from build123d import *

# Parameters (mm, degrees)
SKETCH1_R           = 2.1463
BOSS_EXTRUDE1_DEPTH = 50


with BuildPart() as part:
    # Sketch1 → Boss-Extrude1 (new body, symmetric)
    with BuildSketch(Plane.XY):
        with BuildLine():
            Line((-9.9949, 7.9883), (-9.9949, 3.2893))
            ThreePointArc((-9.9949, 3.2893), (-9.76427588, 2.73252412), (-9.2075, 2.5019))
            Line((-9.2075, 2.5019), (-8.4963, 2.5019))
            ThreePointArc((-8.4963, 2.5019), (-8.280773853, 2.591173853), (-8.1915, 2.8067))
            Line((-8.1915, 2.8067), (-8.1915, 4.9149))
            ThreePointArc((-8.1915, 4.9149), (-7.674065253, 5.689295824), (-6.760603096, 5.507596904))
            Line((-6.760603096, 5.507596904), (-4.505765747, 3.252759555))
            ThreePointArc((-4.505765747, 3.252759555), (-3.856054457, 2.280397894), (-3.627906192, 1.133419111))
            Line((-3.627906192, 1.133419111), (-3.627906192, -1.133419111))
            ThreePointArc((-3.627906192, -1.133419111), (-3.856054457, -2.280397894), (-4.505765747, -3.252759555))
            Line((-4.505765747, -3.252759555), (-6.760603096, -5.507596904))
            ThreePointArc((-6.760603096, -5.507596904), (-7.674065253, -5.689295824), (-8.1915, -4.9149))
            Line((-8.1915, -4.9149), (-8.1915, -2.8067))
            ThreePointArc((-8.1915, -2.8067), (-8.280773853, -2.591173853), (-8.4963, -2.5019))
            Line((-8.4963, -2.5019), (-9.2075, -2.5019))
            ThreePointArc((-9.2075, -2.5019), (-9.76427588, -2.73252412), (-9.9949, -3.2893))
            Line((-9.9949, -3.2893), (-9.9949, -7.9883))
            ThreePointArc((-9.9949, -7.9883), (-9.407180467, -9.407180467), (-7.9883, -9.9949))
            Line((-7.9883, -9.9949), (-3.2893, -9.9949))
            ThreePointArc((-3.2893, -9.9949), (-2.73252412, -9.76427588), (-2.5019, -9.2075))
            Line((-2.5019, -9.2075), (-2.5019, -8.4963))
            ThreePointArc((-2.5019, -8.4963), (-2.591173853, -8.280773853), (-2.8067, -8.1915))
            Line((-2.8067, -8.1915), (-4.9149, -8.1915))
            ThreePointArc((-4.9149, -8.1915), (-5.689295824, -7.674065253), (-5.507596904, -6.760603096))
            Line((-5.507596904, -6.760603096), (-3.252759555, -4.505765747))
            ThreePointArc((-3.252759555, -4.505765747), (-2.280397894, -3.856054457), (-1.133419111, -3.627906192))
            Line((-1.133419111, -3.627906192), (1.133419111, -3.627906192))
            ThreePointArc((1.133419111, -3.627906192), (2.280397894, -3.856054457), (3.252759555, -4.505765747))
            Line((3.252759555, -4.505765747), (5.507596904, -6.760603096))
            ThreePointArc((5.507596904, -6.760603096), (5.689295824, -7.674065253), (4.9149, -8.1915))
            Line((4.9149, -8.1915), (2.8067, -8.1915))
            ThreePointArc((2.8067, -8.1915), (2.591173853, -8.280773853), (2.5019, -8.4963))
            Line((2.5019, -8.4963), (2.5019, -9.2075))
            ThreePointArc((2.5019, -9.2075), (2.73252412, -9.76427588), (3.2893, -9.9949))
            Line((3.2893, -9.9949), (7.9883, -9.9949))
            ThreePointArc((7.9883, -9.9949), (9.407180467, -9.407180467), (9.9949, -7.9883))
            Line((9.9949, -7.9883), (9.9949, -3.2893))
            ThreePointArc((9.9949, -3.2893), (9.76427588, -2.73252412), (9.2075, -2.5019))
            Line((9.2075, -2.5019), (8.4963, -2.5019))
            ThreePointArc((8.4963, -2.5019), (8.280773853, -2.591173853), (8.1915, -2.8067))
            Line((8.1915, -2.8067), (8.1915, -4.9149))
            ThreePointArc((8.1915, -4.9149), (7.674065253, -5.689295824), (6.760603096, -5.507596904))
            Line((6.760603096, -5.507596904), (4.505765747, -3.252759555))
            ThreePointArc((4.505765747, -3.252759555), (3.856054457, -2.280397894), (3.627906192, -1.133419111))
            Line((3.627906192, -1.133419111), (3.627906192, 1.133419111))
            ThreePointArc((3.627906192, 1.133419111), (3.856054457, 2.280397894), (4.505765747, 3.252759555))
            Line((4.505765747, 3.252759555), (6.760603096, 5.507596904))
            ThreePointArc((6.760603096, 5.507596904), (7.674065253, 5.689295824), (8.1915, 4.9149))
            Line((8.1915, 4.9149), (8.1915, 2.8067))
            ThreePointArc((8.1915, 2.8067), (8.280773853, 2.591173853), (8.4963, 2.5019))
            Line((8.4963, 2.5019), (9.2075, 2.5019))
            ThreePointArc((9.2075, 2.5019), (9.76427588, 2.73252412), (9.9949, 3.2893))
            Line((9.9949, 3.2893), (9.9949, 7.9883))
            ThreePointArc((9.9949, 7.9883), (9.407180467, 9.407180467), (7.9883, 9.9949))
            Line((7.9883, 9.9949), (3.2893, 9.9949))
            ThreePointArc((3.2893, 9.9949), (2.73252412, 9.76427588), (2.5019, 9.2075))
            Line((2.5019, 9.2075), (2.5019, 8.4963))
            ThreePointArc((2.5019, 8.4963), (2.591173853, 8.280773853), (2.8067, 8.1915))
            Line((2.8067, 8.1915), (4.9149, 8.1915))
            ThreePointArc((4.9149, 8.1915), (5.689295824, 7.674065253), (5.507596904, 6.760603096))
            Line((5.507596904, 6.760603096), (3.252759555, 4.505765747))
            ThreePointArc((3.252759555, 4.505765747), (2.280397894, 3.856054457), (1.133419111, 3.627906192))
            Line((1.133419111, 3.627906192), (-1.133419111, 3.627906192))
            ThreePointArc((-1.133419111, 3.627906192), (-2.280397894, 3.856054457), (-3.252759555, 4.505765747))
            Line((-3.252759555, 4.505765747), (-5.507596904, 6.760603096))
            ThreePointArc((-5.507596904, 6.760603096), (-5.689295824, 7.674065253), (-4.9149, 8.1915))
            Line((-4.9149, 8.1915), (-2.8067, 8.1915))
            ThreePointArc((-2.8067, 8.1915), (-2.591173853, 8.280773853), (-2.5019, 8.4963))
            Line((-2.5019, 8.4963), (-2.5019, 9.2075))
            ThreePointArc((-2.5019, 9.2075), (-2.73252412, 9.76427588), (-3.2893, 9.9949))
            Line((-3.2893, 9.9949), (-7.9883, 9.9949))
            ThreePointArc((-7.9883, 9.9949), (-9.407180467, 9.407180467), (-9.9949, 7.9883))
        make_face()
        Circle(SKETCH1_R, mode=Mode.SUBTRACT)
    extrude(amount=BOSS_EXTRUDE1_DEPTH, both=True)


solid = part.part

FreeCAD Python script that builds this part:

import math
import FreeCAD as App
import Part
import Sketcher
Q = App.Units.Quantity

doc = App.newDocument("Part")
params = doc.addObject("Spreadsheet::Sheet", "Params")
for row, (alias, value) in enumerate([
    ("sketch1_diameter", "0.169 in"),
    ("sketch1_radius", "0.031 in"),
    ("sketch1_radius2", "0.012 in"),
    ("sketch1_radius3", "0.033 in"),
    ("sketch1_radius4", "0.118 in"),
    ("pad1_length", "100 mm"),
], start=1):
    params.set(f"A{row}", alias)
    params.set(f"B{row}", "=" + value)
    params.setAlias(f"B{row}", alias)

body = doc.addObject("PartDesign::Body", "Body")

sketch1 = body.newObject("Sketcher::SketchObject", "Sketch")
sketch1.AttachmentSupport = (doc.getObject("XY_Plane"), [""])
sketch1.MapMode = "FlatFace"
sketch1.addGeometry([
    Part.LineSegment(App.Vector(-9.99, 7.99, 0), App.Vector(-9.99, 3.29, 0)),
    Part.ArcOfCircle(Part.Circle(App.Vector(-9.21, 3.29, 0), App.Vector(0, 0, 1), 0.79), math.radians(180), math.radians(270)),
    Part.LineSegment(App.Vector(-9.21, 2.5, 0), App.Vector(-8.5, 2.5, 0)),
    Part.ArcOfCircle(Part.Circle(App.Vector(-8.5, 2.81, 0), App.Vector(0, 0, 1), 0.3), math.radians(-90), math.radians(0)),
    Part.LineSegment(App.Vector(-8.19, 2.81, 0), App.Vector(-8.19, 4.91, 0)),
    Part.ArcOfCircle(Part.Circle(App.Vector(-7.35, 4.91, 0), App.Vector(0, 0, 1), 0.84), math.radians(45), math.radians(180)),
    Part.LineSegment(App.Vector(-6.76, 5.51, 0), App.Vector(-4.51, 3.25, 0)),
    Part.ArcOfCircle(Part.Circle(App.Vector(-6.63, 1.13, 0), App.Vector(0, 0, 1), 3), math.radians(0), math.radians(45)),
    Part.LineSegment(App.Vector(-3.63, 1.13, 0), App.Vector(-3.63, -1.13, 0)),
    Part.ArcOfCircle(Part.Circle(App.Vector(-6.63, -1.13, 0), App.Vector(0, 0, 1), 3), math.radians(-45), math.radians(0)),
    Part.LineSegment(App.Vector(-4.51, -3.25, 0), App.Vector(-6.76, -5.51, 0)),
    Part.ArcOfCircle(Part.Circle(App.Vector(-7.35, -4.91, 0), App.Vector(0, 0, 1), 0.84), math.radians(180), math.radians(315)),
    Part.LineSegment(App.Vector(-8.19, -4.91, 0), App.Vector(-8.19, -2.81, 0)),
    Part.ArcOfCircle(Part.Circle(App.Vector(-8.5, -2.81, 0), App.Vector(0, 0, 1), 0.3), math.radians(0), math.radians(90)),
    Part.LineSegment(App.Vector(-8.5, -2.5, 0), App.Vector(-9.21, -2.5, 0)),
    Part.ArcOfCircle(Part.Circle(App.Vector(-9.21, -3.29, 0), App.Vector(0, 0, 1), 0.79), math.radians(90), math.radians(180)),
    Part.LineSegment(App.Vector(-9.99, -3.29, 0), App.Vector(-9.99, -7.99, 0)),
    Part.ArcOfCircle(Part.Circle(App.Vector(-7.99, -7.99, 0), App.Vector(0, 0, 1), 2.01), math.radians(180), math.radians(270)),
    Part.LineSegment(App.Vector(-7.99, -9.99, 0), App.Vector(-3.29, -9.99, 0)),
    Part.ArcOfCircle(Part.Circle(App.Vector(-3.29, -9.21, 0), App.Vector(0, 0, 1), 0.79), math.radians(-90), math.radians(0)),
    Part.LineSegment(App.Vector(-2.5, -9.21, 0), App.Vector(-2.5, -8.5, 0)),
    Part.ArcOfCircle(Part.Circle(App.Vector(-2.81, -8.5, 0), App.Vector(0, 0, 1), 0.3), math.radians(0), math.radians(90)),
    Part.LineSegment(App.Vector(-2.81, -8.19, 0), App.Vector(-4.91, -8.19, 0)),
    Part.ArcOfCircle(Part.Circle(App.Vector(-4.91, -7.35, 0), App.Vector(0, 0, 1), 0.84), math.radians(135), math.radians(270)),
    Part.LineSegment(App.Vector(-5.51, -6.76, 0), App.Vector(-3.25, -4.51, 0)),
    Part.ArcOfCircle(Part.Circle(App.Vector(-1.13, -6.63, 0), App.Vector(0, 0, 1), 3), math.radians(90), math.radians(135)),
    Part.LineSegment(App.Vector(-1.13, -3.63, 0), App.Vector(1.13, -3.63, 0)),
    Part.ArcOfCircle(Part.Circle(App.Vector(1.13, -6.63, 0), App.Vector(0, 0, 1), 3), math.radians(45), math.radians(90)),
    Part.LineSegment(App.Vector(3.25, -4.51, 0), App.Vector(5.51, -6.76, 0)),
    Part.ArcOfCircle(Part.Circle(App.Vector(4.91, -7.35, 0), App.Vector(0, 0, 1), 0.84), math.radians(-90), math.radians(45)),
    Part.LineSegment(App.Vector(4.91, -8.19, 0), App.Vector(2.81, -8.19, 0)),
    Part.ArcOfCircle(Part.Circle(App.Vector(2.81, -8.5, 0), App.Vector(0, 0, 1), 0.3), math.radians(90), math.radians(180)),
    Part.LineSegment(App.Vector(2.5, -8.5, 0), App.Vector(2.5, -9.21, 0)),
    Part.ArcOfCircle(Part.Circle(App.Vector(3.29, -9.21, 0), App.Vector(0, 0, 1), 0.79), math.radians(180), math.radians(270)),
    Part.LineSegment(App.Vector(3.29, -9.99, 0), App.Vector(7.99, -9.99, 0)),
    Part.ArcOfCircle(Part.Circle(App.Vector(7.99, -7.99, 0), App.Vector(0, 0, 1), 2.01), math.radians(-90), math.radians(0)),
    Part.LineSegment(App.Vector(9.99, -7.99, 0), App.Vector(9.99, -3.29, 0)),
    Part.ArcOfCircle(Part.Circle(App.Vector(9.21, -3.29, 0), App.Vector(0, 0, 1), 0.79), math.radians(0), math.radians(90)),
    Part.LineSegment(App.Vector(9.21, -2.5, 0), App.Vector(8.5, -2.5, 0)),
    Part.ArcOfCircle(Part.Circle(App.Vector(8.5, -2.81, 0), App.Vector(0, 0, 1), 0.3), math.radians(90), math.radians(180)),
    Part.LineSegment(App.Vector(8.19, -2.81, 0), App.Vector(8.19, -4.91, 0)),
    Part.ArcOfCircle(Part.Circle(App.Vector(7.35, -4.91, 0), App.Vector(0, 0, 1), 0.84), math.radians(-135), math.radians(0)),
    Part.LineSegment(App.Vector(6.76, -5.51, 0), App.Vector(4.51, -3.25, 0)),
    Part.ArcOfCircle(Part.Circle(App.Vector(6.63, -1.13, 0), App.Vector(0, 0, 1), 3), math.radians(180), math.radians(225)),
    Part.LineSegment(App.Vector(3.63, -1.13, 0), App.Vector(3.63, 1.13, 0)),
    Part.ArcOfCircle(Part.Circle(App.Vector(6.63, 1.13, 0), App.Vector(0, 0, 1), 3), math.radians(135), math.radians(180)),
    Part.LineSegment(App.Vector(4.51, 3.25, 0), App.Vector(6.76, 5.51, 0)),
    Part.ArcOfCircle(Part.Circle(App.Vector(7.35, 4.91, 0), App.Vector(0, 0, 1), 0.84), math.radians(0), math.radians(135)),
    Part.LineSegment(App.Vector(8.19, 4.91, 0), App.Vector(8.19, 2.81, 0)),
    Part.ArcOfCircle(Part.Circle(App.Vector(8.5, 2.81, 0), App.Vector(0, 0, 1), 0.3), math.radians(180), math.radians(270)),
    Part.LineSegment(App.Vector(8.5, 2.5, 0), App.Vector(9.21, 2.5, 0)),
    Part.ArcOfCircle(Part.Circle(App.Vector(9.21, 3.29, 0), App.Vector(0, 0, 1), 0.79), math.radians(-90), math.radians(0)),
    Part.LineSegment(App.Vector(9.99, 3.29, 0), App.Vector(9.99, 7.99, 0)),
    Part.ArcOfCircle(Part.Circle(App.Vector(7.99, 7.99, 0), App.Vector(0, 0, 1), 2.01), math.radians(0), math.radians(90)),
    Part.LineSegment(App.Vector(7.99, 9.99, 0), App.Vector(3.29, 9.99, 0)),
    Part.ArcOfCircle(Part.Circle(App.Vector(3.29, 9.21, 0), App.Vector(0, 0, 1), 0.79), math.radians(90), math.radians(180)),
    Part.LineSegment(App.Vector(2.5, 9.21, 0), App.Vector(2.5, 8.5, 0)),
    Part.ArcOfCircle(Part.Circle(App.Vector(2.81, 8.5, 0), App.Vector(0, 0, 1), 0.3), math.radians(180), math.radians(270)),
    Part.LineSegment(App.Vector(2.81, 8.19, 0), App.Vector(4.91, 8.19, 0)),
    Part.ArcOfCircle(Part.Circle(App.Vector(4.91, 7.35, 0), App.Vector(0, 0, 1), 0.84), math.radians(-45), math.radians(90)),
    Part.LineSegment(App.Vector(5.51, 6.76, 0), App.Vector(3.25, 4.51, 0)),
    Part.ArcOfCircle(Part.Circle(App.Vector(1.13, 6.63, 0), App.Vector(0, 0, 1), 3), math.radians(-90), math.radians(-45)),
    Part.LineSegment(App.Vector(1.13, 3.63, 0), App.Vector(-1.13, 3.63, 0)),
    Part.ArcOfCircle(Part.Circle(App.Vector(-1.13, 6.63, 0), App.Vector(0, 0, 1), 3), math.radians(-135), math.radians(-90)),
    Part.LineSegment(App.Vector(-3.25, 4.51, 0), App.Vector(-5.51, 6.76, 0)),
    Part.ArcOfCircle(Part.Circle(App.Vector(-4.91, 7.35, 0), App.Vector(0, 0, 1), 0.84), math.radians(90), math.radians(225)),
    Part.LineSegment(App.Vector(-4.91, 8.19, 0), App.Vector(-2.81, 8.19, 0)),
    Part.ArcOfCircle(Part.Circle(App.Vector(-2.81, 8.5, 0), App.Vector(0, 0, 1), 0.3), math.radians(-90), math.radians(0)),
    Part.LineSegment(App.Vector(-2.5, 8.5, 0), App.Vector(-2.5, 9.21, 0)),
    Part.ArcOfCircle(Part.Circle(App.Vector(-3.29, 9.21, 0), App.Vector(0, 0, 1), 0.79), math.radians(0), math.radians(90)),
    Part.LineSegment(App.Vector(-3.29, 9.99, 0), App.Vector(-7.99, 9.99, 0)),
    Part.ArcOfCircle(Part.Circle(App.Vector(-7.99, 7.99, 0), App.Vector(0, 0, 1), 2.01), math.radians(90), math.radians(180)),
    Part.Circle(App.Vector(0, 0, 0), App.Vector(0, 0, 1), 2.15),
], False)
sketch1.addConstraint([
    Sketcher.Constraint("Tangent", 0, 2, 1, 1),
    Sketcher.Constraint("Tangent", 1, 2, 2, 1),
    Sketcher.Constraint("Tangent", 2, 2, 3, 1),
    Sketcher.Constraint("Tangent", 3, 2, 4, 1),
    Sketcher.Constraint("Tangent", 4, 2, 5, 2),
    Sketcher.Constraint("Tangent", 5, 1, 6, 1),
    Sketcher.Constraint("Tangent", 6, 2, 7, 2),
    Sketcher.Constraint("Tangent", 7, 1, 8, 1),
    Sketcher.Constraint("Tangent", 8, 2, 9, 2),
    Sketcher.Constraint("Tangent", 9, 1, 10, 1),
    Sketcher.Constraint("Tangent", 10, 2, 11, 2),
    Sketcher.Constraint("Tangent", 11, 1, 12, 1),
    Sketcher.Constraint("Tangent", 12, 2, 13, 1),
    Sketcher.Constraint("Tangent", 13, 2, 14, 1),
    Sketcher.Constraint("Tangent", 14, 2, 15, 1),
    Sketcher.Constraint("Tangent", 15, 2, 16, 1),
    Sketcher.Constraint("Tangent", 16, 2, 17, 1),
    Sketcher.Constraint("Tangent", 17, 2, 18, 1),
    Sketcher.Constraint("Tangent", 18, 2, 19, 1),
    Sketcher.Constraint("Tangent", 19, 2, 20, 1),
    Sketcher.Constraint("Tangent", 20, 2, 21, 1),
    Sketcher.Constraint("Tangent", 21, 2, 22, 1),
    Sketcher.Constraint("Tangent", 22, 2, 23, 2),
    Sketcher.Constraint("Tangent", 23, 1, 24, 1),
    Sketcher.Constraint("Tangent", 24, 2, 25, 2),
    Sketcher.Constraint("Tangent", 25, 1, 26, 1),
    Sketcher.Constraint("Tangent", 26, 2, 27, 2),
    Sketcher.Constraint("Tangent", 27, 1, 28, 1),
    Sketcher.Constraint("Tangent", 28, 2, 29, 2),
    Sketcher.Constraint("Tangent", 29, 1, 30, 1),
    Sketcher.Constraint("Tangent", 30, 2, 31, 1),
    Sketcher.Constraint("Tangent", 31, 2, 32, 1),
    Sketcher.Constraint("Tangent", 32, 2, 33, 1),
    Sketcher.Constraint("Tangent", 33, 2, 34, 1),
    Sketcher.Constraint("Tangent", 34, 2, 35, 1),
    Sketcher.Constraint("Tangent", 35, 2, 36, 1),
    Sketcher.Constraint("Tangent", 36, 2, 37, 1),
    Sketcher.Constraint("Tangent", 37, 2, 38, 1),
    Sketcher.Constraint("Tangent", 38, 2, 39, 1),
    Sketcher.Constraint("Tangent", 39, 2, 40, 1),
    Sketcher.Constraint("Tangent", 40, 2, 41, 2),
    Sketcher.Constraint("Tangent", 41, 1, 42, 1),
    Sketcher.Constraint("Tangent", 42, 2, 43, 2),
    Sketcher.Constraint("Tangent", 43, 1, 44, 1),
    Sketcher.Constraint("Tangent", 44, 2, 45, 2),
    Sketcher.Constraint("Tangent", 45, 1, 46, 1),
    Sketcher.Constraint("Tangent", 46, 2, 47, 2),
    Sketcher.Constraint("Tangent", 47, 1, 48, 1),
    Sketcher.Constraint("Tangent", 48, 2, 49, 1),
    Sketcher.Constraint("Tangent", 49, 2, 50, 1),
    Sketcher.Constraint("Tangent", 50, 2, 51, 1),
    Sketcher.Constraint("Tangent", 51, 2, 52, 1),
    Sketcher.Constraint("Tangent", 52, 2, 53, 1),
    Sketcher.Constraint("Tangent", 53, 2, 54, 1),
    Sketcher.Constraint("Tangent", 54, 2, 55, 1),
    Sketcher.Constraint("Tangent", 55, 2, 56, 1),
    Sketcher.Constraint("Tangent", 56, 2, 57, 1),
    Sketcher.Constraint("Tangent", 57, 2, 58, 1),
    Sketcher.Constraint("Tangent", 58, 2, 59, 2),
    Sketcher.Constraint("Tangent", 59, 1, 60, 1),
    Sketcher.Constraint("Tangent", 60, 2, 61, 2),
    Sketcher.Constraint("Tangent", 61, 1, 62, 1),
    Sketcher.Constraint("Tangent", 62, 2, 63, 2),
    Sketcher.Constraint("Tangent", 63, 1, 64, 1),
    Sketcher.Constraint("Tangent", 64, 2, 65, 2),
    Sketcher.Constraint("Tangent", 65, 1, 66, 1),
    Sketcher.Constraint("Tangent", 66, 2, 67, 1),
    Sketcher.Constraint("Tangent", 67, 2, 68, 1),
    Sketcher.Constraint("Tangent", 68, 2, 69, 1),
    Sketcher.Constraint("Tangent", 69, 2, 70, 1),
    Sketcher.Constraint("Tangent", 70, 2, 71, 1),
    Sketcher.Constraint("Tangent", 71, 2, 0, 1),
    Sketcher.Constraint("Vertical", 0),
    Sketcher.Constraint("Horizontal", 2),
    Sketcher.Constraint("Vertical", 4),
    Sketcher.Constraint("Vertical", 8),
    Sketcher.Constraint("Vertical", 12),
    Sketcher.Constraint("Horizontal", 14),
    Sketcher.Constraint("Vertical", 16),
    Sketcher.Constraint("Horizontal", 18),
    Sketcher.Constraint("Vertical", 20),
    Sketcher.Constraint("Horizontal", 22),
    Sketcher.Constraint("Horizontal", 26),
    Sketcher.Constraint("Horizontal", 30),
    Sketcher.Constraint("Vertical", 32),
    Sketcher.Constraint("Horizontal", 34),
    Sketcher.Constraint("Vertical", 36),
    Sketcher.Constraint("Horizontal", 38),
    Sketcher.Constraint("Vertical", 40),
    Sketcher.Constraint("Vertical", 44),
    Sketcher.Constraint("Vertical", 48),
    Sketcher.Constraint("Horizontal", 50),
    Sketcher.Constraint("Vertical", 52),
    Sketcher.Constraint("Horizontal", 54),
    Sketcher.Constraint("Vertical", 56),
    Sketcher.Constraint("Horizontal", 58),
    Sketcher.Constraint("Horizontal", 62),
    Sketcher.Constraint("Horizontal", 66),
    Sketcher.Constraint("Vertical", 68),
    Sketcher.Constraint("Horizontal", 70),
    Sketcher.Constraint("Coincident", 72, 3, -1, 1),
    Sketcher.Constraint("Equal", 7, 9),
    Sketcher.Constraint("Equal", 5, 11),
    Sketcher.Constraint("Equal", 3, 13),
    Sketcher.Constraint("Equal", 1, 15),
    Sketcher.Constraint("Equal", 15, 19),
    Sketcher.Constraint("Equal", 13, 21),
    Sketcher.Constraint("Equal", 11, 23),
    Sketcher.Constraint("Equal", 9, 25),
    Sketcher.Constraint("Equal", 25, 27),
    Sketcher.Constraint("Equal", 23, 29),
    Sketcher.Constraint("Equal", 21, 31),
    Sketcher.Constraint("Equal", 19, 33),
    Sketcher.Constraint("Equal", 17, 35),
    Sketcher.Constraint("Equal", 33, 37),
    Sketcher.Constraint("Equal", 31, 39),
    Sketcher.Constraint("Equal", 29, 41),
    Sketcher.Constraint("Equal", 27, 43),
    Sketcher.Constraint("Equal", 43, 45),
    Sketcher.Constraint("Equal", 41, 47),
    Sketcher.Constraint("Equal", 39, 49),
    Sketcher.Constraint("Equal", 37, 51),
    Sketcher.Constraint("Equal", 35, 53),
    Sketcher.Constraint("Equal", 51, 55),
    Sketcher.Constraint("Equal", 49, 57),
    Sketcher.Constraint("Equal", 47, 59),
    Sketcher.Constraint("Equal", 45, 61),
    Sketcher.Constraint("Equal", 61, 63),
    Sketcher.Constraint("Equal", 59, 65),
    Sketcher.Constraint("Equal", 57, 67),
    Sketcher.Constraint("Equal", 55, 69),
    Sketcher.Constraint("Equal", 53, 71),
    Sketcher.Constraint("Symmetric", 1, 3, 37, 3, -1, 1),
    Sketcher.Constraint("Symmetric", 5, 3, 41, 3, -1, 1),
    Sketcher.Constraint("Symmetric", 7, 3, 43, 3, -1, 1),
    Sketcher.Constraint("Symmetric", 11, 3, 47, 3, -1, 1),
    Sketcher.Constraint("Symmetric", 15, 3, 51, 3, -1, 1),
    Sketcher.Constraint("Symmetric", 19, 3, 55, 3, -1, 1),
    Sketcher.Constraint("Symmetric", 23, 3, 59, 3, -1, 1),
    Sketcher.Constraint("Symmetric", 25, 3, 61, 3, -1, 1),
    Sketcher.Constraint("Symmetric", 29, 3, 65, 3, -1, 1),
    Sketcher.Constraint("Symmetric", 33, 3, 69, 3, -1, 1),
    Sketcher.Constraint("Symmetric", 23, 3, 29, 3, -2),
    Sketcher.Constraint("Symmetric", 19, 3, 33, 3, -2),
    Sketcher.Constraint("Symmetric", 15, 3, 37, 3, -2),
    Sketcher.Constraint("Symmetric", 11, 3, 41, 3, -2),
    Sketcher.Constraint("Perpendicular", 6, 10),
    Sketcher.Constraint("Parallel", 10, 24),
    Sketcher.Constraint("Perpendicular", 24, 28),
    Sketcher.Constraint("Perpendicular", 42, 46),
    Sketcher.Constraint("Perpendicular", 60, 64),
    Sketcher.Constraint("Horizontal", 9, 3, 43, 3),
    Sketcher.Constraint("Equal", 70, 0),
    Sketcher.Constraint("Equal", 66, 4),
    Sketcher.Constraint("Equal", 62, 8),
    Sketcher.Constraint("Equal", 50, 20),
    Sketcher.Constraint("Equal", 10, 24),
    Sketcher.Constraint("Diameter", 72, Q("0.169 in")),
    Sketcher.Constraint("Radius", 1, Q("0.031 in")),
    Sketcher.Constraint("Radius", 3, Q("0.012 in")),
    Sketcher.Constraint("Radius", 5, Q("0.033 in")),
    Sketcher.Constraint("Radius", 7, Q("0.118 in")),
    Sketcher.Constraint("Radius", 17, Q("0.079 in")),
    Sketcher.Constraint("DistanceX", 2, 1, 2, 2, Q("0.028 in")),
    Sketcher.Constraint("DistanceX", 18, 1, 18, 2, Q("0.185 in")),
    Sketcher.Constraint("DistanceX", 22, 2, 22, 1, Q("0.083 in")),
    Sketcher.Constraint("DistanceX", 1, 3, -1, 1, Q("0.3625 in")),
    Sketcher.Constraint("DistanceX", 26, 1, 26, 2, 2.266838),
])
sketch1.setExpression("Constraints[157]", "Params.sketch1_diameter")
sketch1.setExpression("Constraints[158]", "Params.sketch1_radius")
sketch1.setExpression("Constraints[159]", "Params.sketch1_radius2")
sketch1.setExpression("Constraints[160]", "Params.sketch1_radius3")
sketch1.setExpression("Constraints[161]", "Params.sketch1_radius4")
pad1 = body.newObject("PartDesign::Pad", "Pad")
pad1.Profile = sketch1
pad1.setExpression("Length", "Params.pad1_length")
pad1.Midplane = True

doc.recompute()
